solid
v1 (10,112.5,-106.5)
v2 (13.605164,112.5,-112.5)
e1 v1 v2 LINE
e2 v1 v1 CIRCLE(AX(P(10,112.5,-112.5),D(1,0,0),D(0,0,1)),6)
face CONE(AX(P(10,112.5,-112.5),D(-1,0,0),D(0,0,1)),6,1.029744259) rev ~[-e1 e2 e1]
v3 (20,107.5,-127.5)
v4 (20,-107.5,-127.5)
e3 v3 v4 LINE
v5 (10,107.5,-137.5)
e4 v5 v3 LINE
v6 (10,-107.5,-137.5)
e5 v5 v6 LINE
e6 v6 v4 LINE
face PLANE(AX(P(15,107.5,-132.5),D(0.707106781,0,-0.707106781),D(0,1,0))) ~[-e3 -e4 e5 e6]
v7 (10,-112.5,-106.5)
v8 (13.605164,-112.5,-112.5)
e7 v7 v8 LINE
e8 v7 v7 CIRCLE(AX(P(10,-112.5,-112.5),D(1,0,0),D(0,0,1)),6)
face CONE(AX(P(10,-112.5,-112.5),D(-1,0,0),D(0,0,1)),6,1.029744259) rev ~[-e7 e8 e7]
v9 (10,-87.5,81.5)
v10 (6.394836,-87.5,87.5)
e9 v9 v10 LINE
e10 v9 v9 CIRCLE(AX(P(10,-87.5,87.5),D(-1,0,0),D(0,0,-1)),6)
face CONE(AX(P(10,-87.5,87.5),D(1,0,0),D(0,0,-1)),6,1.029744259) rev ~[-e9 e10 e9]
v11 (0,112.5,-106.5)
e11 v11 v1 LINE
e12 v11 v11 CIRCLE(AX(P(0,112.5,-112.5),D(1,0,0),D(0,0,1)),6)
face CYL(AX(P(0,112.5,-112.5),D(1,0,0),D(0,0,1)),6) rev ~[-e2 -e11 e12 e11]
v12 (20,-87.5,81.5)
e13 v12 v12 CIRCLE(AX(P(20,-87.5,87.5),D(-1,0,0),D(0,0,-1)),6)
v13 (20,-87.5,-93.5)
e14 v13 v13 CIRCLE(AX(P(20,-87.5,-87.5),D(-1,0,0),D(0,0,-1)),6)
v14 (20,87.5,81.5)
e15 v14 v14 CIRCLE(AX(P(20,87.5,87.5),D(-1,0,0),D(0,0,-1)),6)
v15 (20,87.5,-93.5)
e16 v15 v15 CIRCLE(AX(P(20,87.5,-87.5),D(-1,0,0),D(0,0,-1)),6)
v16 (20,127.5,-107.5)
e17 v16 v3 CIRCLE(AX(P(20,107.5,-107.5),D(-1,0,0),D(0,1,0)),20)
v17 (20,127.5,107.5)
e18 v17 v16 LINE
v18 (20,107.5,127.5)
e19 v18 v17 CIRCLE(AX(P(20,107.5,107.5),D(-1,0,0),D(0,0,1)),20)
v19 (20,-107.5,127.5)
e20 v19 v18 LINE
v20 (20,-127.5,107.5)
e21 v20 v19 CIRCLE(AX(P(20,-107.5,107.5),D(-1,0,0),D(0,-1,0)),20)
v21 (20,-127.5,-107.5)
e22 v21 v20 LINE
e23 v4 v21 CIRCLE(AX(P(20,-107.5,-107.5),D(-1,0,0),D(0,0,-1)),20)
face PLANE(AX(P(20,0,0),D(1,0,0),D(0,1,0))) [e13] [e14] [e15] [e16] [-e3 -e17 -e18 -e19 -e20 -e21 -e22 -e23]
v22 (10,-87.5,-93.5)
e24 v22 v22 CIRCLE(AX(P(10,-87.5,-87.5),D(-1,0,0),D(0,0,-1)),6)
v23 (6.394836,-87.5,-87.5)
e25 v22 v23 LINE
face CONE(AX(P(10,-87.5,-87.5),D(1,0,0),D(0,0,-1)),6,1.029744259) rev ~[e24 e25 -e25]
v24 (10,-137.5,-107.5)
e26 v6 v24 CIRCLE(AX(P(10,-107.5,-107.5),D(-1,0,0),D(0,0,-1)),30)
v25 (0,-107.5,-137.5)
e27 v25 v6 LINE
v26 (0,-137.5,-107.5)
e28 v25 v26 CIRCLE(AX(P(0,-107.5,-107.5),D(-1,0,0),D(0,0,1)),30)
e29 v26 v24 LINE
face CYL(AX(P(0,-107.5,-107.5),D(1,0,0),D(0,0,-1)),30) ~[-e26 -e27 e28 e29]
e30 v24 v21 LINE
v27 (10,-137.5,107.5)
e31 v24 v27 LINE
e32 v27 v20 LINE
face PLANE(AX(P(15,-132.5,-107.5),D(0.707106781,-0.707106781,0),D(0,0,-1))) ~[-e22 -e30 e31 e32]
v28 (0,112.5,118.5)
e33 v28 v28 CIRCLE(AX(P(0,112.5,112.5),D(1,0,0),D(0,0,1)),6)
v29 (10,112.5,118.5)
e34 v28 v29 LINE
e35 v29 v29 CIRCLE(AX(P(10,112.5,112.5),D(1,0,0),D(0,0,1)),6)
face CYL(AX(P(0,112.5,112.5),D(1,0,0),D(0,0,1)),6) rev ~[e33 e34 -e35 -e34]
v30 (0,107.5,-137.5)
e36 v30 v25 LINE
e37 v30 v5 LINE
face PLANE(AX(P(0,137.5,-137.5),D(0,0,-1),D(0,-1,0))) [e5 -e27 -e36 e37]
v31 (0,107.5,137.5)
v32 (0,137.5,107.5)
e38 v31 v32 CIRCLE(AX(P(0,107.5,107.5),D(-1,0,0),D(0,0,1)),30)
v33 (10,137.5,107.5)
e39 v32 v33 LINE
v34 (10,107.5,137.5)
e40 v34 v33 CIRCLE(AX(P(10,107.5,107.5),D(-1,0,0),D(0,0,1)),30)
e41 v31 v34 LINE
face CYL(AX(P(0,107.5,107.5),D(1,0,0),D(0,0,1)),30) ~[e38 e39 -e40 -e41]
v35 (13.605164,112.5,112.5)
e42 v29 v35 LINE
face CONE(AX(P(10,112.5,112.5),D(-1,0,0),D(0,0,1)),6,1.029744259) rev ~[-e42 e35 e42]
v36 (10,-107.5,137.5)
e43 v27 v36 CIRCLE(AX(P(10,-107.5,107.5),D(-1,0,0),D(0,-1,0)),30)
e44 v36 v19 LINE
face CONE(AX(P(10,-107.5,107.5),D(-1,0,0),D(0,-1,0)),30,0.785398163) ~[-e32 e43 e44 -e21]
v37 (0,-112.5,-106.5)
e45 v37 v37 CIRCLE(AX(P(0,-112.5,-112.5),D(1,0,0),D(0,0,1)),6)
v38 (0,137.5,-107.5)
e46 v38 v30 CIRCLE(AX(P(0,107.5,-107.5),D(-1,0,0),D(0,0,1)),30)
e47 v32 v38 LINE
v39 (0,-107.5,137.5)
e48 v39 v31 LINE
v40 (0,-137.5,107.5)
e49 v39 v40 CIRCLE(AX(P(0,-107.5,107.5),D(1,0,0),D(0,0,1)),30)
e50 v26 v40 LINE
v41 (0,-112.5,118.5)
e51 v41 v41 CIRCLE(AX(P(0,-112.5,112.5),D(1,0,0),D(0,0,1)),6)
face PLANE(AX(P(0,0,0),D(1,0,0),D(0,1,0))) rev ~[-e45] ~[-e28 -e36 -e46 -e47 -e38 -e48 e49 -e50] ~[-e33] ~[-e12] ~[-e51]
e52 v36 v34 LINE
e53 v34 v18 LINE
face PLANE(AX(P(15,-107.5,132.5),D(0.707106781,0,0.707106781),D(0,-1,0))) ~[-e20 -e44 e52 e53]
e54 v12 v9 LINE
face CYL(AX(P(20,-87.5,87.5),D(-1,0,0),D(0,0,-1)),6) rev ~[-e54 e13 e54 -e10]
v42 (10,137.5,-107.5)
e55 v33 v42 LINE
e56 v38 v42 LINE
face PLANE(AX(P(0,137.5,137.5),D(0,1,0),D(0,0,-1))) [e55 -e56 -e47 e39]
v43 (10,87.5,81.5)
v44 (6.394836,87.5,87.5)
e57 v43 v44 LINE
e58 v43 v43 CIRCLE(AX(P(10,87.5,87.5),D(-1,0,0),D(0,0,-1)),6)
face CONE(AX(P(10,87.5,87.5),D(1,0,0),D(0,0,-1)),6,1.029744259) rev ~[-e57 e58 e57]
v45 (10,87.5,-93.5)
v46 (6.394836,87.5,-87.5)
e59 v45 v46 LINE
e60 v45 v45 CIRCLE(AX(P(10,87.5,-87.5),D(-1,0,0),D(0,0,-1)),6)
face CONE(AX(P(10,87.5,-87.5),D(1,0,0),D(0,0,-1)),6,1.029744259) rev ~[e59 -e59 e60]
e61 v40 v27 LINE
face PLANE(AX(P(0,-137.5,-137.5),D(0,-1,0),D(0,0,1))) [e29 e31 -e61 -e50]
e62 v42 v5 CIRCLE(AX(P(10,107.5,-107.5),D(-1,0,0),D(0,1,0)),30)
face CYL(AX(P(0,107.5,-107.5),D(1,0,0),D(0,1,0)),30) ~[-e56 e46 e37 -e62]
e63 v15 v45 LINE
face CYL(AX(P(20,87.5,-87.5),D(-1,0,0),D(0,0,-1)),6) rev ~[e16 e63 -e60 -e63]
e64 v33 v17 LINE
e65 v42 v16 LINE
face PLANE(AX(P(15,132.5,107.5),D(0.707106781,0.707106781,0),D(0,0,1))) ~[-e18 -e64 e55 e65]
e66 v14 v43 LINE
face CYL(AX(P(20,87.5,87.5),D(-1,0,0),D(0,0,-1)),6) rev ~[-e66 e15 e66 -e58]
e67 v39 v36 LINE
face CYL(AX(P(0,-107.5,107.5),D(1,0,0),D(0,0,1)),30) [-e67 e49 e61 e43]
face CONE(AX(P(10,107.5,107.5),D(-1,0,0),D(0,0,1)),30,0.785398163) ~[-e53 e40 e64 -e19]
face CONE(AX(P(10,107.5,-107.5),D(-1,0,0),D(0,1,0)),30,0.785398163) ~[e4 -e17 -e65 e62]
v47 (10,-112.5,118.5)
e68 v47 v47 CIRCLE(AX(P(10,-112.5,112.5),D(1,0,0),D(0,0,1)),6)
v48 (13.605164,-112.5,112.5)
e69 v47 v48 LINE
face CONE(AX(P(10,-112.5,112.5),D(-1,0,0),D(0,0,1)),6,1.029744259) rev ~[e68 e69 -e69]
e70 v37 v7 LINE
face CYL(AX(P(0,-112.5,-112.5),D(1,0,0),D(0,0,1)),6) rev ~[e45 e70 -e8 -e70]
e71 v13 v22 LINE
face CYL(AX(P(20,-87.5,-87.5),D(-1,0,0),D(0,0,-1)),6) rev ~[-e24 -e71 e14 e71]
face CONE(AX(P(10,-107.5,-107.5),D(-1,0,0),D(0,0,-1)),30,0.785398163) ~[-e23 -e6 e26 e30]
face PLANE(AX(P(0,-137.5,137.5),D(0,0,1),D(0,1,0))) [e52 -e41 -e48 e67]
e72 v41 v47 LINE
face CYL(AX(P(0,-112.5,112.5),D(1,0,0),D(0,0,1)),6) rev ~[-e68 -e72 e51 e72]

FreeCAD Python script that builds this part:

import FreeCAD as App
import Part
import Sketcher
from FreeCAD import Vector


def edges_at(feature, points):
    """Names of the edges that pass closest to the given points."""
    edges = feature.Shape.Edges
    near = lambda p: min(range(len(edges)), key=lambda i: edges[i].distToShape(Part.Vertex(*p))[0])
    return sorted({f"Edge{near(p) + 1}" for p in points})


def add_polygon(sketch, points):
    """Adds a closed chain of lines whose ends are joined by coincident constraints."""
    first, n = sketch.GeometryCount, len(points)
    for a, b in zip(points, points[1:] + points[:1]):
        sketch.addGeometry(Part.LineSegment(App.Vector(*a, 0), App.Vector(*b, 0)), False)
    for i in range(n):
        sketch.addConstraint(Sketcher.Constraint("Coincident", first + i, 2, first + (i + 1) % n, 1))

doc = App.newDocument("Part")
body = doc.addObject("PartDesign::Body", "Body")

# Sketch on YZ plane
sketch1 = body.newObject("Sketcher::SketchObject", "Sketch")
sketch1.AttachmentSupport = (doc.getObject("YZ_Plane"), [""])
sketch1.MapMode = "FlatFace"
add_polygon(sketch1, [(138, 138), (-138, 138), (-138, -138), (138, -138)])  # lines 0-3
sketch1.addConstraint([
    Sketcher.Constraint("Horizontal", 0),
    Sketcher.Constraint("Vertical", 1),
    Sketcher.Constraint("Horizontal", 2),
    Sketcher.Constraint("Vertical", 3),
    Sketcher.Constraint("Symmetric", 0, 2, 2, 2, -1, 1),
    Sketcher.Constraint("Equal", 2, 1),
    Sketcher.Constraint("DistanceX", 0, 2, 0, 1, 275.0),
])
pad1 = body.newObject("PartDesign::Pad", "Pad")
pad1.Profile = sketch1
pad1.Length = 20
doc.recompute()

fillet = body.newObject("PartDesign::Fillet", "Fillet")
fillet.Base = (pad1, edges_at(pad1, [
    (10, 137.5, 137.5),
    (10, -137.5, 137.5),
    (10, 137.5, -137.5),
    (10, -137.5, -137.5),
]))
fillet.Radius = 30
doc.recompute()

chamfer = body.newObject("PartDesign::Chamfer", "Chamfer")
chamfer.Base = (fillet, edges_at(fillet, [
    (20, 0, 137.5),
    (20, -128.713, 128.713),
    (20, -137.5, 0),
    (20, -128.713, -128.713),
    (20, 0, -137.5),
    (20, 128.713, -128.713),
    (20, 137.5, 0),
    (20, 128.713, 128.713),
]))
chamfer.Size = 10

# Sketch on YZ plane
sketch2 = body.newObject("Sketcher::SketchObject", "Sketch001")
sketch2.AttachmentSupport = (doc.getObject("YZ_Plane"), [""])
sketch2.MapMode = "FlatFace"
sketch2.AttachmentOffset = App.Placement(Vector(0, 0, 20), App.Rotation())
sketch2.addGeometry([
    Part.Circle(Vector(88, 88, 0), Vector(0, 0, 1), 6),
    Part.Circle(Vector(88, -88, 0), Vector(0, 0, 1), 6),
    Part.Circle(Vector(-88, 88, 0), Vector(0, 0, 1), 6),
    Part.Circle(Vector(-88, -88, 0), Vector(0, 0, 1), 6),
], False)
sketch2.addConstraint([
    Sketcher.Constraint("Equal", 0, 1),
    Sketcher.Constraint("Equal", 1, 2),
    Sketcher.Constraint("Equal", 2, 3),
    Sketcher.Constraint("Symmetric", 1, 3, 2, 3, -1, 1),
    Sketcher.Constraint("Symmetric", 0, 3, 3, 3, -1, 1),
    Sketcher.Constraint("Symmetric", 0, 3, 2, 3, -2),
    Sketcher.Constraint("Diameter", 0, 12.0),
    Sketcher.Constraint("DistanceY", 1, 3, 0, 3, 175.0),
    Sketcher.Constraint("DistanceX", 2, 3, 0, 3, 175.0),
])
doc.recompute()
hole = body.newObject("PartDesign::Hole", "Hole")
hole.Profile = sketch2
hole.ThreadType = "None"
hole.Diameter = 12
hole.DepthType = "Dimension"
hole.Depth = 10
hole.DrillPoint = "Angled"
hole.DrillPointAngle = 118

# Sketch on YZ plane
sketch3 = body.newObject("Sketcher::SketchObject", "Sketch002")
sketch3.AttachmentSupport = (doc.getObject("YZ_Plane"), [""])
sketch3.MapMode = "FlatFace"
sketch3.addGeometry([
    Part.Circle(Vector(-112, 112, 0), Vector(0, 0, 1), 6),
    Part.Circle(Vector(-112, -112, 0), Vector(0, 0, 1), 6),
    Part.Circle(Vector(112, -112, 0), Vector(0, 0, 1), 6),
    Part.Circle(Vector(112, 112, 0), Vector(0, 0, 1), 6),
], False)
sketch3.addConstraint([
    Sketcher.Constraint("Equal", 0, 1),
    Sketcher.Constraint("Equal", 1, 2),
    Sketcher.Constraint("Equal", 2, 3),
    Sketcher.Constraint("Symmetric", 0, 3, 2, 3, -1, 1),
    Sketcher.Constraint("Symmetric", 1, 3, 3, 3, -1, 1),
    Sketcher.Constraint("Symmetric", 1, 3, 2, 3, -2),
    Sketcher.Constraint("Diameter", 0, 12.0),
    Sketcher.Constraint("DistanceY", 1, 3, 0, 3, 225.0),
    Sketcher.Constraint("DistanceX", 1, 3, 2, 3, 225.0),
])
doc.recompute()
hole2 = body.newObject("PartDesign::Hole", "Hole001")
hole2.Profile = sketch3
hole2.ThreadType = "None"
hole2.Diameter = 12
hole2.DepthType = "Dimension"
hole2.Depth = 10
hole2.DrillPoint = "Angled"
hole2.DrillPointAngle = 118
hole2.Reversed = True

doc.recompute()
